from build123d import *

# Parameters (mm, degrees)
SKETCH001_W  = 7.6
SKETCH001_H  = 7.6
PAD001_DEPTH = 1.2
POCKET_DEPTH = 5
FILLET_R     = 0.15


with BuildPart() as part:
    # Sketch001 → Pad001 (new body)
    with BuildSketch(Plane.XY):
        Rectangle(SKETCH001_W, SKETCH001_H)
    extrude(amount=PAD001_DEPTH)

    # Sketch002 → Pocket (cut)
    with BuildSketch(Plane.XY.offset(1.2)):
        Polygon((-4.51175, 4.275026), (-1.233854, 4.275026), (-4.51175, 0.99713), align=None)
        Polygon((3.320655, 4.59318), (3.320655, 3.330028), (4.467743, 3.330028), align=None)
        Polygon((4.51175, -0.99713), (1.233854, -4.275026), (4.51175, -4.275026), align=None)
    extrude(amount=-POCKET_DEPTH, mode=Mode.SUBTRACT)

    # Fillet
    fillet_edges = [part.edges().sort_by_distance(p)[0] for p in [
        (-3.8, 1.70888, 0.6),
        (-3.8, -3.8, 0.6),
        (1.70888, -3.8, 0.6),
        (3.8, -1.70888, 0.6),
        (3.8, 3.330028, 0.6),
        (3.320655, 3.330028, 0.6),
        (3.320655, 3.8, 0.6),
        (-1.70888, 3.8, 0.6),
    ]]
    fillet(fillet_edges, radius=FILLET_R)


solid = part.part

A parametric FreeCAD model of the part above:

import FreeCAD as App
import Part
import Sketcher

V = App.Vector
Q = App.Units.Quantity


def edges_at(feature, points):
    """Names of the edges that pass closest to the given points."""
    edges = feature.Shape.Edges
    near = lambda p: min(range(len(edges)), key=lambda i: edges[i].distToShape(Part.Vertex(*p))[0])
    return sorted({f"Edge{near(p) + 1}" for p in points})


def add_polygon(sketch, points):
    """Adds a closed chain of lines whose ends are joined by coincident constraints."""
    first, n = sketch.GeometryCount, len(points)
    for a, b in zip(points, points[1:] + points[:1]):
        sketch.addGeometry(Part.LineSegment(App.Vector(*a, 0), App.Vector(*b, 0)), False)
    for i in range(n):
        sketch.addConstraint(Sketcher.Constraint("Coincident", first + i, 2, first + (i + 1) % n, 1))

doc = App.newDocument("Part")
body = doc.addObject("PartDesign::Body", "Body")

# Sketch on XY plane
sketch1 = body.newObject("Sketcher::SketchObject", "Sketch")
sketch1.AttachmentSupport = (doc.getObject("XY_Plane"), [""])
sketch1.MapMode = "FlatFace"
add_polygon(sketch1, [(-3.8, 3.8), (-3.8, -3.8), (3.8, -3.8), (3.8, 3.8)])  # lines 0-3
sketch1.addConstraint([
    Sketcher.Constraint("Vertical", 0),
    Sketcher.Constraint("Horizontal", 1),
    Sketcher.Constraint("Vertical", 2),
    Sketcher.Constraint("Horizontal", 3),
    Sketcher.Constraint("Symmetric", 0, 2, 2, 2, -1, 1),
    Sketcher.Constraint("Equal", 3, 0),
    Sketcher.Constraint("DistanceX", 1, 1, 1, 2, Q("7.6 mm")),
])
pad1 = body.newObject("PartDesign::Pad", "Pad")
pad1.Profile = sketch1
pad1.Length = 1.2

# Sketch on XY plane
sketch2 = body.newObject("Sketcher::SketchObject", "Sketch001")
sketch2.AttachmentSupport = (doc.getObject("XY_Plane"), [""])
sketch2.MapMode = "FlatFace"
sketch2.AttachmentOffset = App.Placement(V(0, 0, 1.2), App.Rotation())
add_polygon(sketch2, [(-1.233854, 4.275026), (-4.51175, 4.275026), (-4.51175, 0.99713)])  # lines 0-2
add_polygon(sketch2, [(3.320655, 4.59318), (3.320655, 3.330028), (4.467743, 3.330028)])  # lines 3-5
add_polygon(sketch2, [(4.51175, -0.99713), (1.233854, -4.275026), (4.51175, -4.275026)])  # lines 6-8
sketch2.addConstraint([
    Sketcher.Constraint("Horizontal", 0),
    Sketcher.Constraint("Vertical", 1),
    Sketcher.Constraint("Vertical", 3),
    Sketcher.Constraint("Horizontal", 4),
    Sketcher.Constraint("Horizontal", 7),
    Sketcher.Constraint("Vertical", 8),
    Sketcher.Constraint("Symmetric", 2, 2, 6, 2, -1, 1),
    Sketcher.Constraint("Symmetric", 1, 2, 8, 2, -1, 1),
    Sketcher.Constraint("Equal", 7, 1),
    Sketcher.Constraint("DistanceY", 3, 2, 2, 2, Q("0.944998 mm")),
    Sketcher.Constraint("DistanceY", 1, 2, 3, 2, Q("2.332898 mm")),
    Sketcher.Constraint("DistanceX", 6, 2, 3, 2, Q("2.086801 mm")),
    Sketcher.Constraint("Distance", 5, Q("1.706272 mm")),
    Sketcher.Constraint("DistanceX", 4, 1, 4, 2, Q("1.147088 mm")),
    Sketcher.Constraint("DistanceX", 0, 2, -1, 1, Q("4.51175 mm")),
    Sketcher.Constraint("DistanceY", -1, 1, 1, 2, Q("0.99713 mm")),
])
pocket1 = body.newObject("PartDesign::Pocket", "Pocket")
pocket1.Profile = sketch2
pocket1.Length = 5
doc.recompute()

fillet = body.newObject("PartDesign::Fillet", "Fillet")
fillet.Base = (pocket1, edges_at(pocket1, [
    (-3.8, 1.709, 0.6),
    (-3.8, -3.8, 0.6),
    (1.709, -3.8, 0.6),
    (3.8, -1.709, 0.6),
    (3.8, 3.33, 0.6),
    (3.321, 3.33, 0.6),
    (3.321, 3.8, 0.6),
    (-1.709, 3.8, 0.6),
]))
fillet.Radius = 0.15

doc.recompute()
